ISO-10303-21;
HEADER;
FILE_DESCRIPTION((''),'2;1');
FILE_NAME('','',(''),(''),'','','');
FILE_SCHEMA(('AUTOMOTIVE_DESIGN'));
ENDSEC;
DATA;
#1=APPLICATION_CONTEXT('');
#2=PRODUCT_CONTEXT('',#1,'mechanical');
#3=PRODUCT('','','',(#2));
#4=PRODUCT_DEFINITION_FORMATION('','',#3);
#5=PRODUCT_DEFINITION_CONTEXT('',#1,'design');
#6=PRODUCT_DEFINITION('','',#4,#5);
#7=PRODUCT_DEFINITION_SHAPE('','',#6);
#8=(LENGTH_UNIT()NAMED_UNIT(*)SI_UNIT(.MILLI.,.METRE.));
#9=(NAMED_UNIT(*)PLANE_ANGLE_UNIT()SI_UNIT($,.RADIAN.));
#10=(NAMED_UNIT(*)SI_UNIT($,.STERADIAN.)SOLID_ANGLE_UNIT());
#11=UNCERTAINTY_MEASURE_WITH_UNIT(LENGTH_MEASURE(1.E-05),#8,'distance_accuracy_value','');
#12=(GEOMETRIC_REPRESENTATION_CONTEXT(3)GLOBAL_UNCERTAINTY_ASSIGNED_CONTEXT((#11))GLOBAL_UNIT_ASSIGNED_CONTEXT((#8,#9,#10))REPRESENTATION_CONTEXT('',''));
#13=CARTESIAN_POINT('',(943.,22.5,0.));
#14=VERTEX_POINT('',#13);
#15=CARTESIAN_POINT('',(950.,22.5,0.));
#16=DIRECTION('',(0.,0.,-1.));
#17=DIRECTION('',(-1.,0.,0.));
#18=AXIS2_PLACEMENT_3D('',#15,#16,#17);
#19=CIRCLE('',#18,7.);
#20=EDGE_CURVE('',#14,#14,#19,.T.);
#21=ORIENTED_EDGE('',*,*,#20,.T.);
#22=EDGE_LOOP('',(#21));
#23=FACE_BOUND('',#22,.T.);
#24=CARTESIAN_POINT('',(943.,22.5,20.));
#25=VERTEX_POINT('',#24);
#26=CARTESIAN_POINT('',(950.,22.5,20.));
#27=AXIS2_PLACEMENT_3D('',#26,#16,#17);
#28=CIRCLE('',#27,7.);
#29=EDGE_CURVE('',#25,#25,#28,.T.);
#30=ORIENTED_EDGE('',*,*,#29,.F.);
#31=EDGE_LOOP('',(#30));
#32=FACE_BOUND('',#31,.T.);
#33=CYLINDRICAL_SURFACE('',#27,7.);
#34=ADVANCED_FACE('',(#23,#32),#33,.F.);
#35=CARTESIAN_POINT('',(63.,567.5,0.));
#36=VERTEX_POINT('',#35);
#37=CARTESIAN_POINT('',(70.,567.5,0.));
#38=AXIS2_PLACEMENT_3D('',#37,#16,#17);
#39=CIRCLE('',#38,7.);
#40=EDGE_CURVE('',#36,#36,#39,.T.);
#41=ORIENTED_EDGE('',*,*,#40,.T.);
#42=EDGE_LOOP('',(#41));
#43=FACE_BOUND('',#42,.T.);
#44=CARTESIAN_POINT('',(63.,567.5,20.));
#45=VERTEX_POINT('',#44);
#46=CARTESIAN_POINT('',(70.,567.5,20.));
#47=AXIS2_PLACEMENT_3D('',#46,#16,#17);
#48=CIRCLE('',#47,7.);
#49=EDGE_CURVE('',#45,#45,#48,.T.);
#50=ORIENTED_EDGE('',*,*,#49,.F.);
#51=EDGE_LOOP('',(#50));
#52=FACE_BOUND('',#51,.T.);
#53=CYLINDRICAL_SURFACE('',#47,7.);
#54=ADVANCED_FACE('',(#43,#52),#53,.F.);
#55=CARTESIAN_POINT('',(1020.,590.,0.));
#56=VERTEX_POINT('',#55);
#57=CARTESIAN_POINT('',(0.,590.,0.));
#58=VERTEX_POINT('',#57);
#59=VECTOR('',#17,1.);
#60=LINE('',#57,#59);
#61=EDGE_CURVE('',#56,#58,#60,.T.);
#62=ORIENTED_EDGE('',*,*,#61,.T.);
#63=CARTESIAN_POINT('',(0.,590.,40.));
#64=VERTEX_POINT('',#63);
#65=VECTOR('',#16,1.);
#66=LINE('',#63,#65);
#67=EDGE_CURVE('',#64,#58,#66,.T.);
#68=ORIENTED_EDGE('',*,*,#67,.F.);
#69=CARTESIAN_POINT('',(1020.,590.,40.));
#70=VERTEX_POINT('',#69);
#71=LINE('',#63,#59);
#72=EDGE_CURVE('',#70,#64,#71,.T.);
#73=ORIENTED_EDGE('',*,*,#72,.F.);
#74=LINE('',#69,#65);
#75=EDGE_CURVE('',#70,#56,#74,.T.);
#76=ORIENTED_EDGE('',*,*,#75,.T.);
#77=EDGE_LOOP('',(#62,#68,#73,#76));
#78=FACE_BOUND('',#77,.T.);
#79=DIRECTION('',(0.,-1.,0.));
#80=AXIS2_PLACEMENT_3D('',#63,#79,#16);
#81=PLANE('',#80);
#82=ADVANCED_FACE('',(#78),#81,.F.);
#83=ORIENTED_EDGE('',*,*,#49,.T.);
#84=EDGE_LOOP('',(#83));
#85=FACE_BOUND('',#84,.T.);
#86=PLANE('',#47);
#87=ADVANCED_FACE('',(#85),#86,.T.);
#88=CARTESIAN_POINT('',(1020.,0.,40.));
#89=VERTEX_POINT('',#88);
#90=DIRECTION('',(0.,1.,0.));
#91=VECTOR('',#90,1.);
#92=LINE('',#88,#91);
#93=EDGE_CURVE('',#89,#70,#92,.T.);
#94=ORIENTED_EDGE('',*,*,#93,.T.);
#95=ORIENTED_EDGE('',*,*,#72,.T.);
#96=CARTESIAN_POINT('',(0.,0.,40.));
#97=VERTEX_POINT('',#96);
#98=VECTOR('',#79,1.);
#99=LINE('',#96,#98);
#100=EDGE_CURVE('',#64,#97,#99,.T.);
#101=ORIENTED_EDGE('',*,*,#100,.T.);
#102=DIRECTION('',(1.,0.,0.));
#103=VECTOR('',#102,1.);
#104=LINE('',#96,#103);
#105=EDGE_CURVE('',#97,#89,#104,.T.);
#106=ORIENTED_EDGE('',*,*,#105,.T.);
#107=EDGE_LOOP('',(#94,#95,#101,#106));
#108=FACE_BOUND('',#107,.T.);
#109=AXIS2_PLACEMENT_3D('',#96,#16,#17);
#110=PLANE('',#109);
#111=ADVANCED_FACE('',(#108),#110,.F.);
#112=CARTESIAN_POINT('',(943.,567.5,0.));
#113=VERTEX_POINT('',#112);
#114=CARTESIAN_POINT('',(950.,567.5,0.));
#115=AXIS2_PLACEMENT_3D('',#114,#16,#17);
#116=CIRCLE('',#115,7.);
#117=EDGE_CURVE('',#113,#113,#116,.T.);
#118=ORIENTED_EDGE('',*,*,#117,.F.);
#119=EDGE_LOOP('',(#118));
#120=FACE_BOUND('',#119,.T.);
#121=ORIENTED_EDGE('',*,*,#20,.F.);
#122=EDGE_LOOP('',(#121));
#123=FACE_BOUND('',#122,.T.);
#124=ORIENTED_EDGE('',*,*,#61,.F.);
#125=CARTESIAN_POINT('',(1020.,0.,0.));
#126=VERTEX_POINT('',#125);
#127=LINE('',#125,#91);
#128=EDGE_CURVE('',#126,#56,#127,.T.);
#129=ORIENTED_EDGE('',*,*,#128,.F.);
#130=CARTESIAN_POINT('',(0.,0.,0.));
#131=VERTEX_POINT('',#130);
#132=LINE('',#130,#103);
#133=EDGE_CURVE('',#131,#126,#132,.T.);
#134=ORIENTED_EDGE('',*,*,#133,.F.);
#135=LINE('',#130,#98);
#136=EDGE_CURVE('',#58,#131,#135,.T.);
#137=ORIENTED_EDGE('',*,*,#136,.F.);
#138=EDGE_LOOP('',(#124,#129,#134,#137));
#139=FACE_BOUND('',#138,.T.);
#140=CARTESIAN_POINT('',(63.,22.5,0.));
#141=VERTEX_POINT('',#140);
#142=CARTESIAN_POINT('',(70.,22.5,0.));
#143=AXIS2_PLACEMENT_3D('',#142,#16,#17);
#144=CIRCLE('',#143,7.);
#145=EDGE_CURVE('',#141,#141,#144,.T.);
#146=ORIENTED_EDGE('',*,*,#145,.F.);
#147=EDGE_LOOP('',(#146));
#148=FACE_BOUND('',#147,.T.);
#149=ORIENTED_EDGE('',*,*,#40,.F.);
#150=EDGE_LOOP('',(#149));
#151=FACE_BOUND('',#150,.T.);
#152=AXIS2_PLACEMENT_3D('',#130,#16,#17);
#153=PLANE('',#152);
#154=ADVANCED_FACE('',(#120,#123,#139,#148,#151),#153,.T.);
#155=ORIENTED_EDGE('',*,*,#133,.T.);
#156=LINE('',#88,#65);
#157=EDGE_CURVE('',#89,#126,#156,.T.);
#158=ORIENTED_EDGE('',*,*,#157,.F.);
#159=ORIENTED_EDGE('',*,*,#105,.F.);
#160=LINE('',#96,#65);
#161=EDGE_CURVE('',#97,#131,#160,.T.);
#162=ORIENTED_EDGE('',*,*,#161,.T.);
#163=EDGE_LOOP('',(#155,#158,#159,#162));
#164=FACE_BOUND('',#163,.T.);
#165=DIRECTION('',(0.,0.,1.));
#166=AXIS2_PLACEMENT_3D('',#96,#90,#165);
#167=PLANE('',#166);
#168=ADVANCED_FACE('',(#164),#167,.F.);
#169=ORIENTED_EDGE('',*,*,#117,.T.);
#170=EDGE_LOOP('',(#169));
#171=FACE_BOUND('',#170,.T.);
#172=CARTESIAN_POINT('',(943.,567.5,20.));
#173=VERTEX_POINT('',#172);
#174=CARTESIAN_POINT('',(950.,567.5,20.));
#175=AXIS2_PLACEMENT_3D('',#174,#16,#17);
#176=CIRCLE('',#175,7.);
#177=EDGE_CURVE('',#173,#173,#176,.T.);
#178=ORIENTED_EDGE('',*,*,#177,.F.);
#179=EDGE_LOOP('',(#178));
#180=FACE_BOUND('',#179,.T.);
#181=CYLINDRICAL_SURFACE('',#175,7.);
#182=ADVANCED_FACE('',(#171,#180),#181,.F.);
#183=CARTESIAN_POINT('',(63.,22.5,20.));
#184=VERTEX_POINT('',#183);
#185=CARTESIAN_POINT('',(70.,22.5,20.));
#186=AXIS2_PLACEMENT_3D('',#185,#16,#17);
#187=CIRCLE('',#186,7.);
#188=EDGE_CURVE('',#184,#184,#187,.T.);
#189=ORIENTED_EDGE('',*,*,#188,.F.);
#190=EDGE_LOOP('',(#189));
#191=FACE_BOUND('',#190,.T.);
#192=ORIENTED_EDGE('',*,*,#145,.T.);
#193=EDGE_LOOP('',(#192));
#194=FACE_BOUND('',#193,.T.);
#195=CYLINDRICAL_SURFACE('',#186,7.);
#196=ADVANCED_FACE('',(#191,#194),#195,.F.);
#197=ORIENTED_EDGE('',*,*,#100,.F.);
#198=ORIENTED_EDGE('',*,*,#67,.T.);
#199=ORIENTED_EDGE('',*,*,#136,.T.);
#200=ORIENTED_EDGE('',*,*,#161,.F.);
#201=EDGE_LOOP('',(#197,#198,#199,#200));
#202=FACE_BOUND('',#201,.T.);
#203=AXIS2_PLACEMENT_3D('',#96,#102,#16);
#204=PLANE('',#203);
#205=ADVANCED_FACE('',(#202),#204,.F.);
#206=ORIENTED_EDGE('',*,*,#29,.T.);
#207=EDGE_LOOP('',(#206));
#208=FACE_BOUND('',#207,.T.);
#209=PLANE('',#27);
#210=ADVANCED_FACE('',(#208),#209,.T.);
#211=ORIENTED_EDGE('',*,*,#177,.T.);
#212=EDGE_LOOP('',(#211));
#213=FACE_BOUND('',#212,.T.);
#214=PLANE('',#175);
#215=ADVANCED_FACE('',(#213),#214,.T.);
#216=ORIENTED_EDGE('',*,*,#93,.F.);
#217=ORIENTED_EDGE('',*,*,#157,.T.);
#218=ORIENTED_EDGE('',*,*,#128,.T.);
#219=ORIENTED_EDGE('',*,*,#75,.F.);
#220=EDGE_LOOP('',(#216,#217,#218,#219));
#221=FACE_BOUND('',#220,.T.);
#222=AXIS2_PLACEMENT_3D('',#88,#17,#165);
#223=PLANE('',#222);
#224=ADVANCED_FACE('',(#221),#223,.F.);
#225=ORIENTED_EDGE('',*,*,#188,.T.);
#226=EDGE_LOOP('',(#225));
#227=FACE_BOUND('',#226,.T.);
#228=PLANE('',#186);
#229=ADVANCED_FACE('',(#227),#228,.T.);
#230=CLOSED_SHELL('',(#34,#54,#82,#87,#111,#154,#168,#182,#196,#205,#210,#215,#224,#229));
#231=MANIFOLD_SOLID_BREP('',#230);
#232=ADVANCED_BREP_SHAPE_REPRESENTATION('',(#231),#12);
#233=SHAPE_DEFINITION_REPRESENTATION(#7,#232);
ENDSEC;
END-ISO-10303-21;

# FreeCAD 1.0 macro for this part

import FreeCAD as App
import Part
import Sketcher


def add_polygon(sketch, points):
    """Adds a closed chain of lines whose ends are joined by coincident constraints."""
    first, n = sketch.GeometryCount, len(points)
    for a, b in zip(points, points[1:] + points[:1]):
        sketch.addGeometry(Part.LineSegment(App.Vector(*a, 0), App.Vector(*b, 0)), False)
    for i in range(n):
        sketch.addConstraint(Sketcher.Constraint("Coincident", first + i, 2, first + (i + 1) % n, 1))

doc = App.newDocument("Part")
params = doc.addObject("Spreadsheet::Sheet", "Params")
for row, (alias, value) in enumerate([
    ("sketch1_width", "1020 mm"),
    ("sketch1_height", "590 mm"),
    ("pad1_length", "40 mm"),
    ("sketch2_diameter", "14 mm"),
    ("pocket1_length", "20 mm"),
], start=1):
    params.set(f"A{row}", alias)
    params.set(f"B{row}", "=" + value)
    params.setAlias(f"B{row}", alias)

body = doc.addObject("PartDesign::Body", "Body")

# Sketch on XY plane
sketch1 = body.newObject("Sketcher::SketchObject", "Sketch")
sketch1.AttachmentSupport = (doc.getObject("XY_Plane"), [""])
sketch1.MapMode = "FlatFace"
add_polygon(sketch1, [(0, 590), (0, 0), (1020, 0), (1020, 590)])  # lines 0-3
sketch1.addConstraint([
    Sketcher.Constraint("Vertical", 0),
    Sketcher.Constraint("Horizontal", 1),
    Sketcher.Constraint("Vertical", 2),
    Sketcher.Constraint("Horizontal", 3),
    Sketcher.Constraint("Coincident", 0, 2, -1, 1),
    Sketcher.Constraint("DistanceX", 1, 1, 1, 2, 1020.0),
    Sketcher.Constraint("DistanceY", 0, 2, 0, 1, 590.0),
])
sketch1.setExpression("Constraints[9]", "Params.sketch1_width")
sketch1.setExpression("Constraints[10]", "Params.sketch1_height")
pad1 = body.newObject("PartDesign::Pad", "Pad")
pad1.Profile = sketch1
pad1.setExpression("Length", "Params.pad1_length")

# Sketch on XY plane
sketch2 = body.newObject("Sketcher::SketchObject", "Sketch001")
sketch2.AttachmentSupport = (doc.getObject("XY_Plane"), [""])
sketch2.MapMode = "FlatFace"
sketch2.addGeometry([
    Part.Circle(App.Vector(70, 22.5, 0), App.Vector(0, 0, 1), 7),
    Part.Circle(App.Vector(70, 567.5, 0), App.Vector(0, 0, 1), 7),
    Part.Circle(App.Vector(950, 567.5, 0), App.Vector(0, 0, 1), 7),
    Part.Circle(App.Vector(950, 22.5, 0), App.Vector(0, 0, 1), 7),
], False)
sketch2.addConstraint([
    Sketcher.Constraint("Equal", 0, 1),
    Sketcher.Constraint("Equal", 1, 2),
    Sketcher.Constraint("Equal", 2, 3),
    Sketcher.Constraint("Horizontal", 1, 3, 2, 3),
    Sketcher.Constraint("Horizontal", 0, 3, 3, 3),
    Sketcher.Constraint("Vertical", 0, 3, 1, 3),
    Sketcher.Constraint("Vertical", 2, 3, 3, 3),
    Sketcher.Constraint("Diameter", 0, 14.0),
    Sketcher.Constraint("DistanceX", -1, 1, 0, 3, 70.0),
    Sketcher.Constraint("DistanceX", -1, 1, 2, 3, 950.0),
    Sketcher.Constraint("DistanceY", 0, 3, 1, 3, 545.0),
    Sketcher.Constraint("DistanceY", -1, 1, 0, 3, 22.5),
])
sketch2.setExpression("Constraints[7]", "Params.sketch2_diameter")
pocket1 = body.newObject("PartDesign::Pocket", "Pocket")
pocket1.Profile = sketch2
pocket1.setExpression("Length", "Params.pocket1_length")
pocket1.Reversed = True

doc.recompute()
